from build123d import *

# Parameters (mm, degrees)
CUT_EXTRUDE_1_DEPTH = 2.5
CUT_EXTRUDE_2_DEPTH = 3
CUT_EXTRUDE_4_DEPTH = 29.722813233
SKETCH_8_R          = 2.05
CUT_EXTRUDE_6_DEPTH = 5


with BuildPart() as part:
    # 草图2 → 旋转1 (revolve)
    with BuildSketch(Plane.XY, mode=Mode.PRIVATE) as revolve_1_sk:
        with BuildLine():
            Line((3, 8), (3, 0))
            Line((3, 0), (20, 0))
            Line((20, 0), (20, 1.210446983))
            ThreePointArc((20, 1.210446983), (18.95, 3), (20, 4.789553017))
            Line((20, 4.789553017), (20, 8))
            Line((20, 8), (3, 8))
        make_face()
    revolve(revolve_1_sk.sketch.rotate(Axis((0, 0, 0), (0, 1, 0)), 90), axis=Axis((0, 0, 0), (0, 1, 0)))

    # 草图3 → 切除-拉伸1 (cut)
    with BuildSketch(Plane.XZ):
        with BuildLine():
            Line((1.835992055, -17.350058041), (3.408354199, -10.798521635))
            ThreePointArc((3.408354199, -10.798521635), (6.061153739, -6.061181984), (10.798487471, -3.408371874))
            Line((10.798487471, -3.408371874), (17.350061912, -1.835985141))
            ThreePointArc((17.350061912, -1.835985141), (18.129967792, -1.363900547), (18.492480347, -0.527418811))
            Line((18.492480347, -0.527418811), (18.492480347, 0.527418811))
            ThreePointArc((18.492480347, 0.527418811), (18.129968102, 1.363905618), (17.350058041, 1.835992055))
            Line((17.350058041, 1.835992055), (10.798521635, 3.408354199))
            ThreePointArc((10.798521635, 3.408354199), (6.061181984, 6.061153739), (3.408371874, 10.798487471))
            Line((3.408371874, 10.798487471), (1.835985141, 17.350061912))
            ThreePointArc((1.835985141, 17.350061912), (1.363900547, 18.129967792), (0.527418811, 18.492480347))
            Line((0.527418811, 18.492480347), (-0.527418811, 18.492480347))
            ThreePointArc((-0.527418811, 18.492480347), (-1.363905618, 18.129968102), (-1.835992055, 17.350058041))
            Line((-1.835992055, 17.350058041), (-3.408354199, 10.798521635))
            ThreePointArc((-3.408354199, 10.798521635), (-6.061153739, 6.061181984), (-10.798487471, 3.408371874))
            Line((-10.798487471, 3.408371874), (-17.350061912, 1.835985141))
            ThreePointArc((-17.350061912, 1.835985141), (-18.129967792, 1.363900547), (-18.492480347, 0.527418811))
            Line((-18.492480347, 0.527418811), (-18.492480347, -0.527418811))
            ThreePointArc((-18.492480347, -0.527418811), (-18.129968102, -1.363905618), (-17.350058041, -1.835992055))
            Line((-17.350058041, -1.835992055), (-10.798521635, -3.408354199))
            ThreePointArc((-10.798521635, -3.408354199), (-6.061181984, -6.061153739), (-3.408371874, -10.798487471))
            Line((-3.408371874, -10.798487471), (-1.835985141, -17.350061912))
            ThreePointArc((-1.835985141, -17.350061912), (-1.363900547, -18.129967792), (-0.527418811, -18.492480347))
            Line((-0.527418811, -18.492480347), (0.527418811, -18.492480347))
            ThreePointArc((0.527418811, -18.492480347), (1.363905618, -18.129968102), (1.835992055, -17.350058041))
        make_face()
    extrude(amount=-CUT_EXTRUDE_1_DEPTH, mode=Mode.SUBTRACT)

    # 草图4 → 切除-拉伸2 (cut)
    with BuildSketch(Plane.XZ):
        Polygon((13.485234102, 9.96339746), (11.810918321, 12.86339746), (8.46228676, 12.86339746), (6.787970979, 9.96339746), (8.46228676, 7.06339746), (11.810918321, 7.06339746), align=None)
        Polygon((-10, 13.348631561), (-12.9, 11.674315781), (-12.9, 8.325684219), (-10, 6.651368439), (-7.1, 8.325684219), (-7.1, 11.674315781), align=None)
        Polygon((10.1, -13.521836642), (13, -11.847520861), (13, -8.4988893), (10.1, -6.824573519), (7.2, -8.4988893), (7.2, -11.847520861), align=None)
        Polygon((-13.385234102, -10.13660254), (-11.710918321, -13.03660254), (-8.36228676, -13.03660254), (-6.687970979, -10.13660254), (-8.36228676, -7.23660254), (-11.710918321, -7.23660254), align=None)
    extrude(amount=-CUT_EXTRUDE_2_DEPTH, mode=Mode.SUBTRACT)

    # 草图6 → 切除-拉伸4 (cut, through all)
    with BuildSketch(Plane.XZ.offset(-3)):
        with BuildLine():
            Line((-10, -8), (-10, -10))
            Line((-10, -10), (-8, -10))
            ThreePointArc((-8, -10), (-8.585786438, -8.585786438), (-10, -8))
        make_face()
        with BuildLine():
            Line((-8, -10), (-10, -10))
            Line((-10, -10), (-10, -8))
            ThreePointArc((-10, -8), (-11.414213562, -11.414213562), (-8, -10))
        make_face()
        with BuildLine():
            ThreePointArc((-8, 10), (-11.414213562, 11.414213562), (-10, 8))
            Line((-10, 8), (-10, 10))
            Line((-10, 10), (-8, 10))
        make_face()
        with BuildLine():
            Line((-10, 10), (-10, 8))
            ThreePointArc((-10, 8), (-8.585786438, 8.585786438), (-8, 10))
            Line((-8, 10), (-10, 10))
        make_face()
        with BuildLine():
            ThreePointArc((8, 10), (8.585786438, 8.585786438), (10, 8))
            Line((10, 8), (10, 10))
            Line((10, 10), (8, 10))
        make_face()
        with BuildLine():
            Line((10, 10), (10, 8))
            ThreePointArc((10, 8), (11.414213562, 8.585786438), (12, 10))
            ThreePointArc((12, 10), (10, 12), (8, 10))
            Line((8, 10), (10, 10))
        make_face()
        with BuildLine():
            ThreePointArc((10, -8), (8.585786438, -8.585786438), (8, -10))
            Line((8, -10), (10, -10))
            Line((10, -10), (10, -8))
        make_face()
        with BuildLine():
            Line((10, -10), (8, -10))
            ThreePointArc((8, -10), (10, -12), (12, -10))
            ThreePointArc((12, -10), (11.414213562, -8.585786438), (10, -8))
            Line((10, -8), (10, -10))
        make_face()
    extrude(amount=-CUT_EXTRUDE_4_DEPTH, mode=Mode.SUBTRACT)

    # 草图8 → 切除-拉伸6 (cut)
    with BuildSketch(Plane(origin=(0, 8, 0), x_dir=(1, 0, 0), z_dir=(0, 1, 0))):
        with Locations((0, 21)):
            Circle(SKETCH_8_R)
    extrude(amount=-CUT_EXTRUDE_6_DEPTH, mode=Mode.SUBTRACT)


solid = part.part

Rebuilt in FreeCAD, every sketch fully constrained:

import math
import FreeCAD as App
import Part
import Sketcher
Q = App.Units.Quantity


def add_polygon(sketch, points):
    """Adds a closed chain of lines whose ends are joined by coincident constraints."""
    first, n = sketch.GeometryCount, len(points)
    for a, b in zip(points, points[1:] + points[:1]):
        sketch.addGeometry(Part.LineSegment(App.Vector(*a, 0), App.Vector(*b, 0)), False)
    for i in range(n):
        sketch.addConstraint(Sketcher.Constraint("Coincident", first + i, 2, first + (i + 1) % n, 1))

doc = App.newDocument("Part")
body = doc.addObject("PartDesign::Body", "Body")

# Sketch on XY plane
sketch1 = body.newObject("Sketcher::SketchObject", "Sketch")
sketch1.AttachmentSupport = (doc.getObject("XY_Plane"), [""])
sketch1.MapMode = "FlatFace"
sketch1.addGeometry([
    Part.LineSegment(App.Vector(3, 8, 0), App.Vector(3, 0, 0)),  # 0
    Part.LineSegment(App.Vector(3, 0, 0), App.Vector(20, 0, 0)),  # 1
    Part.LineSegment(App.Vector(20, 0, 0), App.Vector(20, 1.2, 0)),  # 2
    Part.ArcOfCircle(Part.Circle(App.Vector(21, 3, 0), App.Vector(0, 0, 1), 2), math.radians(119), math.radians(241)),  # 3
    Part.LineSegment(App.Vector(20, 4.8, 0), App.Vector(20, 8, 0)),  # 4
    Part.LineSegment(App.Vector(20, 8, 0), App.Vector(3, 8, 0)),  # 5
], False)
sketch1.addConstraint([
    Sketcher.Constraint("Coincident", 0, 2, 1, 1),
    Sketcher.Constraint("Coincident", 1, 2, 2, 1),
    Sketcher.Constraint("Coincident", 2, 2, 3, 2),
    Sketcher.Constraint("Coincident", 3, 1, 4, 1),
    Sketcher.Constraint("Coincident", 4, 2, 5, 1),
    Sketcher.Constraint("Coincident", 5, 2, 0, 1),
    Sketcher.Constraint("Vertical", 0),
    Sketcher.Constraint("Horizontal", 1),
    Sketcher.Constraint("Vertical", 2),
    Sketcher.Constraint("Vertical", 4),
    Sketcher.Constraint("Horizontal", 5),
    Sketcher.Constraint("PointOnObject", 0, 2, -1),
    Sketcher.Constraint("Vertical", 2, 2, 3, 1),
    Sketcher.Constraint("DistanceX", 1, 1, 1, 2, 17.0),
    Sketcher.Constraint("DistanceY", 0, 2, 0, 1, 8.0),
    Sketcher.Constraint("Radius", 3, 2.05),
    Sketcher.Constraint("DistanceX", -1, 1, 3, 3, 21.0),
    Sketcher.Constraint("DistanceY", -1, 1, 3, 3, 3.0),
    Sketcher.Constraint("DistanceX", -1, 1, 0, 2, 3.0),
])
revolution = body.newObject("PartDesign::Revolution", "Revolution")
revolution.Profile = sketch1
revolution.ReferenceAxis = (sketch1, ["V_Axis"])
revolution.Angle = 360

# Sketch on XZ plane
sketch2 = body.newObject("Sketcher::SketchObject", "Sketch001")
sketch2.AttachmentSupport = (doc.getObject("XZ_Plane"), [""])
sketch2.MapMode = "FlatFace"
sketch2.addGeometry([
    Part.LineSegment(App.Vector(1.8, -17.4, 0), App.Vector(3.4, -10.8, 0)),  # 0
    Part.ArcOfCircle(Part.Circle(App.Vector(13.1, -13.1, 0), App.Vector(0, 0, 1), 10), math.radians(103), math.radians(167)),  # 1
    Part.LineSegment(App.Vector(10.8, -3.4, 0), App.Vector(17.4, -1.8, 0)),  # 2
    Part.ArcOfCircle(Part.Circle(App.Vector(17, -0.4, 0), App.Vector(0, 0, 1), 1.5), math.radians(-77), math.radians(-6)),  # 3
    Part.LineSegment(App.Vector(18.5, -0.5, 0), App.Vector(18.5, 0.5, 0)),  # 4
    Part.ArcOfCircle(Part.Circle(App.Vector(17, 0.4, 0), App.Vector(0, 0, 1), 1.5), math.radians(6), math.radians(77)),  # 5
    Part.LineSegment(App.Vector(17.4, 1.8, 0), App.Vector(10.8, 3.4, 0)),  # 6
    Part.ArcOfCircle(Part.Circle(App.Vector(13.1, 13.1, 0), App.Vector(0, 0, 1), 10), math.radians(-167), math.radians(-103)),  # 7
    Part.LineSegment(App.Vector(3.4, 10.8, 0), App.Vector(1.8, 17.4, 0)),  # 8
    Part.ArcOfCircle(Part.Circle(App.Vector(0.4, 17, 0), App.Vector(0, 0, 1), 1.5), math.radians(13), math.radians(84)),  # 9
    Part.LineSegment(App.Vector(0.5, 18.5, 0), App.Vector(-0.5, 18.5, 0)),  # 10
    Part.ArcOfCircle(Part.Circle(App.Vector(-0.4, 17, 0), App.Vector(0, 0, 1), 1.5), math.radians(96), math.radians(167)),  # 11
    Part.LineSegment(App.Vector(-1.8, 17.4, 0), App.Vector(-3.4, 10.8, 0)),  # 12
    Part.ArcOfCircle(Part.Circle(App.Vector(-13.1, 13.1, 0), App.Vector(0, 0, 1), 10), math.radians(-77), math.radians(-13)),  # 13
    Part.LineSegment(App.Vector(-10.8, 3.4, 0), App.Vector(-17.4, 1.8, 0)),  # 14
    Part.ArcOfCircle(Part.Circle(App.Vector(-17, 0.4, 0), App.Vector(0, 0, 1), 1.5), math.radians(103), math.radians(174)),  # 15
    Part.LineSegment(App.Vector(-18.5, 0.5, 0), App.Vector(-18.5, -0.5, 0)),  # 16
    Part.ArcOfCircle(Part.Circle(App.Vector(-17, -0.4, 0), App.Vector(0, 0, 1), 1.5), math.radians(-174), math.radians(-103)),  # 17
    Part.LineSegment(App.Vector(-17.4, -1.8, 0), App.Vector(-10.8, -3.4, 0)),  # 18
    Part.ArcOfCircle(Part.Circle(App.Vector(-13.1, -13.1, 0), App.Vector(0, 0, 1), 10), math.radians(13), math.radians(77)),  # 19
    Part.LineSegment(App.Vector(-3.4, -10.8, 0), App.Vector(-1.8, -17.4, 0)),  # 20
    Part.ArcOfCircle(Part.Circle(App.Vector(-0.4, -17, 0), App.Vector(0, 0, 1), 1.5), math.radians(-167), math.radians(-96)),  # 21
    Part.LineSegment(App.Vector(-0.5, -18.5, 0), App.Vector(0.5, -18.5, 0)),  # 22
    Part.ArcOfCircle(Part.Circle(App.Vector(0.4, -17, 0), App.Vector(0, 0, 1), 1.5), math.radians(-84), math.radians(-13)),  # 23
], False)
sketch2.addConstraint([
    Sketcher.Constraint("Tangent", 0, 2, 1, 2),
    Sketcher.Constraint("Tangent", 1, 1, 2, 1),
    Sketcher.Constraint("Tangent", 2, 2, 3, 1),
    Sketcher.Constraint("Coincident", 3, 2, 4, 1),
    Sketcher.Constraint("Coincident", 4, 2, 5, 1),
    Sketcher.Constraint("Tangent", 5, 2, 6, 1),
    Sketcher.Constraint("Tangent", 6, 2, 7, 2),
    Sketcher.Constraint("Tangent", 7, 1, 8, 1),
    Sketcher.Constraint("Tangent", 8, 2, 9, 1),
    Sketcher.Constraint("Coincident", 9, 2, 10, 1),
    Sketcher.Constraint("Coincident", 10, 2, 11, 1),
    Sketcher.Constraint("Tangent", 11, 2, 12, 1),
    Sketcher.Constraint("Tangent", 12, 2, 13, 2),
    Sketcher.Constraint("Tangent", 13, 1, 14, 1),
    Sketcher.Constraint("Tangent", 14, 2, 15, 1),
    Sketcher.Constraint("Coincident", 15, 2, 16, 1),
    Sketcher.Constraint("Coincident", 16, 2, 17, 1),
    Sketcher.Constraint("Tangent", 17, 2, 18, 1),
    Sketcher.Constraint("Tangent", 18, 2, 19, 2),
    Sketcher.Constraint("Tangent", 19, 1, 20, 1),
    Sketcher.Constraint("Tangent", 20, 2, 21, 1),
    Sketcher.Constraint("Coincident", 21, 2, 22, 1),
    Sketcher.Constraint("Coincident", 22, 2, 23, 1),
    Sketcher.Constraint("Tangent", 23, 2, 0, 1),
    Sketcher.Constraint("Vertical", 4),
    Sketcher.Constraint("Horizontal", 10),
    Sketcher.Constraint("Vertical", 16),
    Sketcher.Constraint("Horizontal", 22),
    Sketcher.Constraint("Equal", 3, 5),
    Sketcher.Constraint("Equal", 1, 7),
    Sketcher.Constraint("Equal", 5, 9),
    Sketcher.Constraint("Equal", 9, 11),
    Sketcher.Constraint("Equal", 7, 13),
    Sketcher.Constraint("Equal", 11, 15),
    Sketcher.Constraint("Equal", 15, 17),
    Sketcher.Constraint("Equal", 13, 19),
    Sketcher.Constraint("Equal", 17, 21),
    Sketcher.Constraint("Equal", 21, 23),
    Sketcher.Constraint("Symmetric", 1, 3, 13, 3, -1, 1),
    Sketcher.Constraint("Symmetric", 3, 3, 15, 3, -1, 1),
    Sketcher.Constraint("Symmetric", 5, 3, 17, 3, -1, 1),
    Sketcher.Constraint("Symmetric", 7, 3, 19, 3, -1, 1),
    Sketcher.Constraint("Symmetric", 9, 3, 21, 3, -1, 1),
    Sketcher.Constraint("Symmetric", 11, 3, 23, 3, -1, 1),
    Sketcher.Constraint("Symmetric", 9, 3, 11, 3, -2),
    Sketcher.Constraint("Symmetric", 5, 3, 15, 3, -2),
    Sketcher.Constraint("Perpendicular", 0, 6),
    Sketcher.Constraint("Perpendicular", 2, 8),
    Sketcher.Constraint("Horizontal", 4, 2, 15, 2),
    Sketcher.Constraint("Vertical", 10, 2, 21, 2),
    Sketcher.Constraint("Equal", 22, 4),
    Sketcher.Constraint("Equal", 0, 6),
    Sketcher.Constraint("Radius", 1, 10.0),
    Sketcher.Constraint("Radius", 3, 1.5),
    Sketcher.Constraint("DistanceX", -1, 1, 3, 3, 17.000001),
    Sketcher.Constraint("DistanceY", -1, 1, 9, 3, 17.000001),
    Sketcher.Constraint("DistanceY", 1, 1, 7, 3, 16.540601),
    Sketcher.Constraint("Distance", 2, 6.73762),
    Sketcher.Constraint("DistanceX", 10, 2, 10, 1, 1.054838),
    Sketcher.Constraint("DistanceX", -1, 1, 1, 3, 13.132229),
])
pocket1 = body.newObject("PartDesign::Pocket", "Pocket")
pocket1.Profile = sketch2
pocket1.Length = 2.5

# Sketch on XZ plane
sketch3 = body.newObject("Sketcher::SketchObject", "Sketch002")
sketch3.AttachmentSupport = (doc.getObject("XZ_Plane"), [""])
sketch3.MapMode = "FlatFace"
add_polygon(sketch3, [(13.5, 10), (11.8, 12.9), (8.5, 12.9), (6.8, 10), (8.5, 7.1), (11.8, 7.1)])  # lines 0-5
add_polygon(sketch3, [(-10, 13.3), (-12.9, 11.7), (-12.9, 8.3), (-10, 6.7), (-7.1, 8.3), (-7.1, 11.7)])  # lines 6-11
add_polygon(sketch3, [(10.1, -13.5), (13, -11.8), (13, -8.5), (10.1, -6.8), (7.2, -8.5), (7.2, -11.8)])  # lines 12-17
add_polygon(sketch3, [(-13.4, -10.1), (-11.7, -13), (-8.4, -13), (-6.7, -10.1), (-8.4, -7.2), (-11.7, -7.2)])  # lines 18-23
sketch3.addConstraint([
    Sketcher.Constraint("Horizontal", 1),
    Sketcher.Constraint("Horizontal", 4),
    Sketcher.Constraint("Vertical", 7),
    Sketcher.Constraint("Vertical", 10),
    Sketcher.Constraint("Vertical", 13),
    Sketcher.Constraint("Vertical", 16),
    Sketcher.Constraint("Horizontal", 19),
    Sketcher.Constraint("Horizontal", 22),
    Sketcher.Constraint("Parallel", 0, 3),
    Sketcher.Constraint("Parallel", 2, 5),
    Sketcher.Constraint("Perpendicular", 3, 6),
    Sketcher.Constraint("Perpendicular", 5, 8),
    Sketcher.Constraint("Parallel", 6, 9),
    Sketcher.Constraint("Parallel", 8, 11),
    Sketcher.Constraint("Parallel", 9, 12),
    Sketcher.Constraint("Parallel", 11, 14),
    Sketcher.Constraint("Parallel", 12, 15),
    Sketcher.Constraint("Parallel", 14, 17),
    Sketcher.Constraint("Perpendicular", 15, 18),
    Sketcher.Constraint("Perpendicular", 17, 20),
    Sketcher.Constraint("Parallel", 18, 21),
    Sketcher.Constraint("Parallel", 20, 23),
    Sketcher.Constraint("Horizontal", 2, 2, 5, 2),
    Sketcher.Constraint("Horizontal", 7, 2, 9, 2),
    Sketcher.Constraint("Horizontal", 6, 2, 10, 2),
    Sketcher.Constraint("Horizontal", 13, 2, 15, 2),
    Sketcher.Constraint("Horizontal", 12, 2, 16, 2),
    Sketcher.Constraint("Horizontal", 20, 2, 23, 2),
    Sketcher.Constraint("Vertical", 1, 2, 3, 2),
    Sketcher.Constraint("Vertical", 0, 2, 4, 2),
    Sketcher.Constraint("Vertical", 19, 2, 21, 2),
    Sketcher.Constraint("Equal", 4, 19),
    Sketcher.Constraint("Equal", 22, 7),
    Sketcher.Constraint("Equal", 10, 13),
    Sketcher.Constraint("Equal", 5, 6),
    Sketcher.Constraint("Equal", 11, 12),
    Sketcher.Constraint("Equal", 17, 18),
    Sketcher.Constraint("Angle", 0, Q("120 deg")),
    Sketcher.Constraint("DistanceX", 8, 2, -1, 1, 10.0),
    Sketcher.Constraint("DistanceX", -1, 1, 12, 2, 13.0),
    Sketcher.Constraint("DistanceX", 6, 2, -1, 1, 12.9),
    Sketcher.Constraint("DistanceX", 1, 2, 1, 1, 3.348632),
    Sketcher.Constraint("DistanceX", -1, 1, 0, 2, 11.810918),
    Sketcher.Constraint("DistanceY", -1, 1, 8, 2, 6.651368),
    Sketcher.Constraint("DistanceY", 12, 2, -1, 1, 11.847521),
    Sketcher.Constraint("DistanceX", 18, 2, -1, 1, 11.710918),
    Sketcher.Constraint("DistanceY", 2, 2, 6, 2, 1.710918),
    Sketcher.Constraint("DistanceY", 18, 2, 16, 2, 1.189082),
])
pocket2 = body.newObject("PartDesign::Pocket", "Pocket001")
pocket2.Profile = sketch3
pocket2.Length = 3

# Sketch on XZ plane
sketch4 = body.newObject("Sketcher::SketchObject", "Sketch003")
sketch4.AttachmentSupport = (doc.getObject("XZ_Plane"), [""])
sketch4.MapMode = "FlatFace"
sketch4.AttachmentOffset = App.Placement(App.Vector(0, 0, -3), App.Rotation())
sketch4.addGeometry([
    Part.ArcOfCircle(Part.Circle(App.Vector(-10, -10, 0), App.Vector(0, 0, 1), 2), math.radians(0), math.radians(90)),  # 0
    Part.ArcOfCircle(Part.Circle(App.Vector(-10, -10, 0), App.Vector(0, 0, 1), 2), math.radians(90), math.radians(360)),  # 1
    Part.ArcOfCircle(Part.Circle(App.Vector(-10, 10, 0), App.Vector(0, 0, 1), 2), math.radians(0), math.radians(270)),  # 2
    Part.ArcOfCircle(Part.Circle(App.Vector(-10, 10, 0), App.Vector(0, 0, 1), 2), math.radians(-90), math.radians(0)),  # 3
    Part.ArcOfCircle(Part.Circle(App.Vector(10, 10, 0), App.Vector(0, 0, 1), 2), math.radians(-180), math.radians(-90)),  # 4
    Part.ArcOfCircle(Part.Circle(App.Vector(10, 10, 0), App.Vector(0, 0, 1), 2), math.radians(-90), math.radians(0)),  # 5
    Part.ArcOfCircle(Part.Circle(App.Vector(10, 10, 0), App.Vector(0, 0, 1), 2), math.radians(0), math.radians(180)),  # 6
    Part.ArcOfCircle(Part.Circle(App.Vector(10, -10, 0), App.Vector(0, 0, 1), 2), math.radians(90), math.radians(180)),  # 7
    Part.ArcOfCircle(Part.Circle(App.Vector(10, -10, 0), App.Vector(0, 0, 1), 2), math.radians(180), math.radians(360)),  # 8
    Part.ArcOfCircle(Part.Circle(App.Vector(10, -10, 0), App.Vector(0, 0, 1), 2), math.radians(0), math.radians(90)),  # 9
], False)
sketch4.addConstraint([
    Sketcher.Constraint("Tangent", 0, 1, 1, 2),
    Sketcher.Constraint("Coincident", 1, 1, 0, 2),
    Sketcher.Constraint("Tangent", 2, 1, 3, 2),
    Sketcher.Constraint("Coincident", 3, 1, 2, 2),
    Sketcher.Constraint("Tangent", 4, 2, 5, 1),
    Sketcher.Constraint("Tangent", 5, 2, 6, 1),
    Sketcher.Constraint("Tangent", 6, 2, 4, 1),
    Sketcher.Constraint("Tangent", 7, 2, 8, 1),
    Sketcher.Constraint("Tangent", 8, 2, 9, 1),
    Sketcher.Constraint("Tangent", 9, 2, 7, 1),
    Sketcher.Constraint("Equal", 1, 2),
    Sketcher.Constraint("Equal", 3, 4),
    Sketcher.Constraint("Equal", 6, 7),
    Sketcher.Constraint("Symmetric", 0, 3, 4, 3, -1, 1),
    Sketcher.Constraint("Symmetric", 2, 3, 7, 3, -1, 1),
    Sketcher.Constraint("Symmetric", 2, 3, 4, 3, -2),
    Sketcher.Constraint("Horizontal", 9, 3, 0, 1),
    Sketcher.Constraint("Horizontal", 6, 3, 2, 1),
    Sketcher.Constraint("Horizontal", 2, 1, 5, 2),
    Sketcher.Constraint("Horizontal", 5, 2, 6, 2),
    Sketcher.Constraint("Horizontal", 0, 1, 7, 2),
    Sketcher.Constraint("Horizontal", 7, 2, 8, 2),
    Sketcher.Constraint("Vertical", 3, 3, 1, 1),
    Sketcher.Constraint("Vertical", 1, 1, 3, 1),
    Sketcher.Constraint("Vertical", 9, 3, 4, 2),
    Sketcher.Constraint("Vertical", 4, 2, 9, 2),
    Sketcher.Constraint("Radius", 0, 2.0),
    Sketcher.Constraint("DistanceX", 0, 3, -1, 1, 10.0),
    Sketcher.Constraint("DistanceY", 0, 3, -1, 1, 10.0),
])
pocket3 = body.newObject("PartDesign::Pocket", "Pocket002")
pocket3.Profile = sketch4
pocket3.Type = "ThroughAll"

# Sketch on XZ plane
sketch5 = body.newObject("Sketcher::SketchObject", "Sketch004")
sketch5.AttachmentSupport = (doc.getObject("XZ_Plane"), [""])
sketch5.MapMode = "FlatFace"
sketch5.AttachmentOffset = App.Placement(App.Vector(0, 0, -8), App.Rotation())
sketch5.addGeometry(Part.Circle(App.Vector(0, -21, 0), App.Vector(0, 0, 1), 2), False)
sketch5.addConstraint([
    Sketcher.Constraint("PointOnObject", 0, 3, -2),
    Sketcher.Constraint("Diameter", 0, 4.1),
    Sketcher.Constraint("DistanceY", 0, 3, -1, 1, 21.0),
])
pocket4 = body.newObject("PartDesign::Pocket", "Pocket003")
pocket4.Profile = sketch5
pocket4.Length = 5
pocket4.Reversed = True

doc.recompute()
